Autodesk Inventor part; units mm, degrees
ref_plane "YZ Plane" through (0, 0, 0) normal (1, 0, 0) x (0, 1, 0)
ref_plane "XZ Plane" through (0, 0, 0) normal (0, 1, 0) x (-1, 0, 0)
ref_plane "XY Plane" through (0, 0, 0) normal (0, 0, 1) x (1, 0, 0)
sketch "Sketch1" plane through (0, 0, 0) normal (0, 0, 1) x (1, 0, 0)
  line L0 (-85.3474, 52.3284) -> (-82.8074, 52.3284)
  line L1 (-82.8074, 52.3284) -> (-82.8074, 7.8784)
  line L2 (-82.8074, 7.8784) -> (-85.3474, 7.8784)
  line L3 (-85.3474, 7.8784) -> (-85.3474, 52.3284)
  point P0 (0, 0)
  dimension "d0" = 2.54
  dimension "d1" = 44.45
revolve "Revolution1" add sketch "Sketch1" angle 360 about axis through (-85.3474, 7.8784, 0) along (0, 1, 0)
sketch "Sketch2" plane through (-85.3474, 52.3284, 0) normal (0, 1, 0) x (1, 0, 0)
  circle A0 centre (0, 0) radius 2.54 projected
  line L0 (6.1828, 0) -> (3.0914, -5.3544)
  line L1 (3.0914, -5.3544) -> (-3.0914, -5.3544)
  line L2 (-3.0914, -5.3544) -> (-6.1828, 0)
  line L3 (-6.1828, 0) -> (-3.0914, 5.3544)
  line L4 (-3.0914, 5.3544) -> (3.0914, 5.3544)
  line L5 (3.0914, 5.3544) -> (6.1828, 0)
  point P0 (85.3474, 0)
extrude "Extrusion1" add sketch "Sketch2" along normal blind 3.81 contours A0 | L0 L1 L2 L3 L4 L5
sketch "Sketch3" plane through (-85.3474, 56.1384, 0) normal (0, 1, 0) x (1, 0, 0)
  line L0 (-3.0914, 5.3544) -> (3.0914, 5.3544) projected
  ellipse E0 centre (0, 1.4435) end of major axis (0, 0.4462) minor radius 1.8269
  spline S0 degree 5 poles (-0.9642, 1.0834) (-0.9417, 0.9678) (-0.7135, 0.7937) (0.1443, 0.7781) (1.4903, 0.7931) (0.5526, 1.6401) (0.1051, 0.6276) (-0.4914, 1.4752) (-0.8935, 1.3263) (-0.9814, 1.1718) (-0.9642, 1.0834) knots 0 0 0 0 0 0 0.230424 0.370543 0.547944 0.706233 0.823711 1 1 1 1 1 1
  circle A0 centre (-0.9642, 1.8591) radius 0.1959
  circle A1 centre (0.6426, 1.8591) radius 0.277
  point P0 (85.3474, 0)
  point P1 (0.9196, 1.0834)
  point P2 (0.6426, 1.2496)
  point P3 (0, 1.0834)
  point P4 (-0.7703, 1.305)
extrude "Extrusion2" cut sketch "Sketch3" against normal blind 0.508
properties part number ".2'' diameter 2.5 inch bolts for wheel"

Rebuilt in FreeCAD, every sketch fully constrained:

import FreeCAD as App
import Part
import Sketcher
from FreeCAD import Vector
Q = App.Units.Quantity

doc = App.newDocument("Part")
body = doc.addObject("PartDesign::Body", "Body")

sketch1 = body.newObject("Sketcher::SketchObject", "Sketch")
sketch1.AttachmentSupport = (doc.getObject("XY_Plane"), [""])
sketch1.MapMode = "FlatFace"
sketch1.addGeometry(Part.LineSegment(Vector(-82.8, 52.3, 0), Vector(-85.3, 52.3, 0)), False)
sketch1.addGeometry(Part.LineSegment(Vector(-85.3, 52.3, 0), Vector(-85.3, 7.9, 0)), False)
sketch1.addGeometry(Part.LineSegment(Vector(-85.3, 7.9, 0), Vector(-82.8, 7.9, 0)), False)
sketch1.addGeometry(Part.LineSegment(Vector(-82.8, 7.9, 0), Vector(-82.8, 52.3, 0)), False)
sketch1.addGeometry(Part.LineSegment(Vector(-85.3, 7.9, 0), Vector(-85.3, 52.3, 0)), True)
sketch1.addConstraint(Sketcher.Constraint("Coincident", 0, 2, 1, 1))
sketch1.addConstraint(Sketcher.Constraint("Coincident", 1, 2, 2, 1))
sketch1.addConstraint(Sketcher.Constraint("Coincident", 2, 2, 3, 1))
sketch1.addConstraint(Sketcher.Constraint("Coincident", 3, 2, 0, 1))
sketch1.addConstraint(Sketcher.Constraint("Horizontal", 0))
sketch1.addConstraint(Sketcher.Constraint("Vertical", 1))
sketch1.addConstraint(Sketcher.Constraint("Horizontal", 2))
sketch1.addConstraint(Sketcher.Constraint("Vertical", 3))
sketch1.addConstraint(Sketcher.Constraint("Vertical", 4))
sketch1.addConstraint(Sketcher.Constraint("Coincident", 4, 1, 1, 2))
sketch1.addConstraint(Sketcher.Constraint("Horizontal", 3, 2, 4, 2))
sketch1.addConstraint(Sketcher.Constraint("DistanceX", 0, 2, 0, 1, Q("0.1 in")))
sketch1.addConstraint(Sketcher.Constraint("DistanceY", 1, 2, 1, 1, Q("1.75 in")))
sketch1.addConstraint(Sketcher.Constraint("DistanceX", 0, 2, -1, 1, Q("85.3474 mm")))
sketch1.addConstraint(Sketcher.Constraint("DistanceY", -1, 1, 0, 2, Q("52.3284 mm")))
revolution = body.newObject("PartDesign::Revolution", "Revolution")
revolution.Profile = sketch1
revolution.ReferenceAxis = (sketch1, ["Axis0"])
revolution.Angle = 360

sketch2 = body.newObject("Sketcher::SketchObject", "Sketch001")
sketch2.AttachmentSupport = (doc.getObject("XZ_Plane"), [""])
sketch2.MapMode = "FlatFace"
sketch2.AttachmentOffset = App.Placement(Vector(0, 0, -52.3284), App.Rotation())
sketch2.addGeometry(Part.LineSegment(Vector(-82, 5, 0), Vector(-79, 0, 0)), False)
sketch2.addGeometry(Part.LineSegment(Vector(-79, 0, 0), Vector(-82, -5, 0)), False)
sketch2.addGeometry(Part.LineSegment(Vector(-82, -5, 0), Vector(-88, -5, 0)), False)
sketch2.addGeometry(Part.LineSegment(Vector(-88, -5, 0), Vector(-92, 0, 0)), False)
sketch2.addGeometry(Part.LineSegment(Vector(-92, 0, 0), Vector(-88, 5, 0)), False)
sketch2.addGeometry(Part.LineSegment(Vector(-88, 5, 0), Vector(-82, 5, 0)), False)
sketch2.addConstraint(Sketcher.Constraint("Coincident", 0, 2, 1, 1))
sketch2.addConstraint(Sketcher.Constraint("Coincident", 1, 2, 2, 1))
sketch2.addConstraint(Sketcher.Constraint("Coincident", 2, 2, 3, 1))
sketch2.addConstraint(Sketcher.Constraint("Coincident", 3, 2, 4, 1))
sketch2.addConstraint(Sketcher.Constraint("Coincident", 4, 2, 5, 1))
sketch2.addConstraint(Sketcher.Constraint("Coincident", 5, 2, 0, 1))
sketch2.addConstraint(Sketcher.Constraint("Horizontal", 2))
sketch2.addConstraint(Sketcher.Constraint("Horizontal", 5))
sketch2.addConstraint(Sketcher.Constraint("Symmetric", 2, 2, 4, 2, -1))
sketch2.addConstraint(Sketcher.Constraint("PointOnObject", 0, 2, -1))
sketch2.addConstraint(Sketcher.Constraint("PointOnObject", 3, 2, -1))
sketch2.addConstraint(Sketcher.Constraint("Parallel", 0, 3))
sketch2.addConstraint(Sketcher.Constraint("Parallel", 1, 4))
sketch2.addConstraint(Sketcher.Constraint("Angle", 0, Q("-59.9997 deg")))
sketch2.addConstraint(Sketcher.Constraint("DistanceX", 2, 2, 2, 1, Q("6.1828 mm")))
sketch2.addConstraint(Sketcher.Constraint("DistanceY", 1, 2, -1, 1, Q("0.2108 in")))
sketch2.addConstraint(Sketcher.Constraint("DistanceX", 0, 2, -1, 1, Q("79.1646 mm")))
pad1 = body.newObject("PartDesign::Pad", "Pad")
pad1.Profile = sketch2
pad1.Length = Q("0.15 in")
pad1.Reversed = True

sketch3 = body.newObject("Sketcher::SketchObject", "Sketch002")
sketch3.AttachmentSupport = (doc.getObject("XZ_Plane"), [""])
sketch3.MapMode = "FlatFace"
sketch3.AttachmentOffset = App.Placement(Vector(0, 0, -56.1384), App.Rotation())
sketch3.addGeometry(Part.Ellipse(Vector(-83.5205, -1.4435, 0), Vector(-85.3474, -0.4462, 0), Vector(-85.3474, -1.4435, 0)), False)
sketch3.addGeometry(Part.BSplineCurve([Vector(-86.3116, -1.0834, 0), Vector(-86.2891, -0.9678, 0), Vector(-86.0609, -0.7937, 0), Vector(-85.2031, -0.7781, 0), Vector(-83.8571, -0.7931, 0), Vector(-84.7948, -1.6401, 0), Vector(-85.2423, -0.6276, 0), Vector(-85.8388, -1.4752, 0), Vector(-86.2409, -1.3263, 0), Vector(-86.3288, -1.1718, 0), Vector(-86.3116, -1.0834, 0)], [6, 1, 1, 1, 1, 1, 6], [0, 0.230424, 0.370543, 0.547944, 0.706233, 0.823711, 1], False, 5, [1, 1, 1, 1, 1, 1, 1, 1, 1, 1, 1], False), False)
sketch3.addGeometry(Part.Circle(Vector(-86.3116, -1.8591, 0), Vector(0, 0, 1), 0.1959), False)
sketch3.addGeometry(Part.Circle(Vector(-84.7048, -1.8591, 0), Vector(0, 0, 1), 0.277), False)
sketch3.addConstraint(Sketcher.Constraint("Block", 0))
sketch3.addConstraint(Sketcher.Constraint("Block", 1))
sketch3.addConstraint(Sketcher.Constraint("Horizontal", 2, 3, 3, 3))
sketch3.addConstraint(Sketcher.Constraint("Diameter", 3, Q("0.0218 in")))
sketch3.addConstraint(Sketcher.Constraint("Diameter", 2, Q("0.3918 mm")))
sketch3.addConstraint(Sketcher.Constraint("DistanceX", 2, 3, -1, 1, Q("3.3981 in")))
sketch3.addConstraint(Sketcher.Constraint("DistanceY", 2, 3, -1, 1, Q("0.0732 in")))
sketch3.addConstraint(Sketcher.Constraint("DistanceX", 3, 3, -1, 1, Q("84.7048 mm")))
pocket1 = body.newObject("PartDesign::Pocket", "Pocket")
pocket1.Profile = sketch3
pocket1.Length = Q("0.02 in")
pocket1.Reversed = True

doc.recompute()
